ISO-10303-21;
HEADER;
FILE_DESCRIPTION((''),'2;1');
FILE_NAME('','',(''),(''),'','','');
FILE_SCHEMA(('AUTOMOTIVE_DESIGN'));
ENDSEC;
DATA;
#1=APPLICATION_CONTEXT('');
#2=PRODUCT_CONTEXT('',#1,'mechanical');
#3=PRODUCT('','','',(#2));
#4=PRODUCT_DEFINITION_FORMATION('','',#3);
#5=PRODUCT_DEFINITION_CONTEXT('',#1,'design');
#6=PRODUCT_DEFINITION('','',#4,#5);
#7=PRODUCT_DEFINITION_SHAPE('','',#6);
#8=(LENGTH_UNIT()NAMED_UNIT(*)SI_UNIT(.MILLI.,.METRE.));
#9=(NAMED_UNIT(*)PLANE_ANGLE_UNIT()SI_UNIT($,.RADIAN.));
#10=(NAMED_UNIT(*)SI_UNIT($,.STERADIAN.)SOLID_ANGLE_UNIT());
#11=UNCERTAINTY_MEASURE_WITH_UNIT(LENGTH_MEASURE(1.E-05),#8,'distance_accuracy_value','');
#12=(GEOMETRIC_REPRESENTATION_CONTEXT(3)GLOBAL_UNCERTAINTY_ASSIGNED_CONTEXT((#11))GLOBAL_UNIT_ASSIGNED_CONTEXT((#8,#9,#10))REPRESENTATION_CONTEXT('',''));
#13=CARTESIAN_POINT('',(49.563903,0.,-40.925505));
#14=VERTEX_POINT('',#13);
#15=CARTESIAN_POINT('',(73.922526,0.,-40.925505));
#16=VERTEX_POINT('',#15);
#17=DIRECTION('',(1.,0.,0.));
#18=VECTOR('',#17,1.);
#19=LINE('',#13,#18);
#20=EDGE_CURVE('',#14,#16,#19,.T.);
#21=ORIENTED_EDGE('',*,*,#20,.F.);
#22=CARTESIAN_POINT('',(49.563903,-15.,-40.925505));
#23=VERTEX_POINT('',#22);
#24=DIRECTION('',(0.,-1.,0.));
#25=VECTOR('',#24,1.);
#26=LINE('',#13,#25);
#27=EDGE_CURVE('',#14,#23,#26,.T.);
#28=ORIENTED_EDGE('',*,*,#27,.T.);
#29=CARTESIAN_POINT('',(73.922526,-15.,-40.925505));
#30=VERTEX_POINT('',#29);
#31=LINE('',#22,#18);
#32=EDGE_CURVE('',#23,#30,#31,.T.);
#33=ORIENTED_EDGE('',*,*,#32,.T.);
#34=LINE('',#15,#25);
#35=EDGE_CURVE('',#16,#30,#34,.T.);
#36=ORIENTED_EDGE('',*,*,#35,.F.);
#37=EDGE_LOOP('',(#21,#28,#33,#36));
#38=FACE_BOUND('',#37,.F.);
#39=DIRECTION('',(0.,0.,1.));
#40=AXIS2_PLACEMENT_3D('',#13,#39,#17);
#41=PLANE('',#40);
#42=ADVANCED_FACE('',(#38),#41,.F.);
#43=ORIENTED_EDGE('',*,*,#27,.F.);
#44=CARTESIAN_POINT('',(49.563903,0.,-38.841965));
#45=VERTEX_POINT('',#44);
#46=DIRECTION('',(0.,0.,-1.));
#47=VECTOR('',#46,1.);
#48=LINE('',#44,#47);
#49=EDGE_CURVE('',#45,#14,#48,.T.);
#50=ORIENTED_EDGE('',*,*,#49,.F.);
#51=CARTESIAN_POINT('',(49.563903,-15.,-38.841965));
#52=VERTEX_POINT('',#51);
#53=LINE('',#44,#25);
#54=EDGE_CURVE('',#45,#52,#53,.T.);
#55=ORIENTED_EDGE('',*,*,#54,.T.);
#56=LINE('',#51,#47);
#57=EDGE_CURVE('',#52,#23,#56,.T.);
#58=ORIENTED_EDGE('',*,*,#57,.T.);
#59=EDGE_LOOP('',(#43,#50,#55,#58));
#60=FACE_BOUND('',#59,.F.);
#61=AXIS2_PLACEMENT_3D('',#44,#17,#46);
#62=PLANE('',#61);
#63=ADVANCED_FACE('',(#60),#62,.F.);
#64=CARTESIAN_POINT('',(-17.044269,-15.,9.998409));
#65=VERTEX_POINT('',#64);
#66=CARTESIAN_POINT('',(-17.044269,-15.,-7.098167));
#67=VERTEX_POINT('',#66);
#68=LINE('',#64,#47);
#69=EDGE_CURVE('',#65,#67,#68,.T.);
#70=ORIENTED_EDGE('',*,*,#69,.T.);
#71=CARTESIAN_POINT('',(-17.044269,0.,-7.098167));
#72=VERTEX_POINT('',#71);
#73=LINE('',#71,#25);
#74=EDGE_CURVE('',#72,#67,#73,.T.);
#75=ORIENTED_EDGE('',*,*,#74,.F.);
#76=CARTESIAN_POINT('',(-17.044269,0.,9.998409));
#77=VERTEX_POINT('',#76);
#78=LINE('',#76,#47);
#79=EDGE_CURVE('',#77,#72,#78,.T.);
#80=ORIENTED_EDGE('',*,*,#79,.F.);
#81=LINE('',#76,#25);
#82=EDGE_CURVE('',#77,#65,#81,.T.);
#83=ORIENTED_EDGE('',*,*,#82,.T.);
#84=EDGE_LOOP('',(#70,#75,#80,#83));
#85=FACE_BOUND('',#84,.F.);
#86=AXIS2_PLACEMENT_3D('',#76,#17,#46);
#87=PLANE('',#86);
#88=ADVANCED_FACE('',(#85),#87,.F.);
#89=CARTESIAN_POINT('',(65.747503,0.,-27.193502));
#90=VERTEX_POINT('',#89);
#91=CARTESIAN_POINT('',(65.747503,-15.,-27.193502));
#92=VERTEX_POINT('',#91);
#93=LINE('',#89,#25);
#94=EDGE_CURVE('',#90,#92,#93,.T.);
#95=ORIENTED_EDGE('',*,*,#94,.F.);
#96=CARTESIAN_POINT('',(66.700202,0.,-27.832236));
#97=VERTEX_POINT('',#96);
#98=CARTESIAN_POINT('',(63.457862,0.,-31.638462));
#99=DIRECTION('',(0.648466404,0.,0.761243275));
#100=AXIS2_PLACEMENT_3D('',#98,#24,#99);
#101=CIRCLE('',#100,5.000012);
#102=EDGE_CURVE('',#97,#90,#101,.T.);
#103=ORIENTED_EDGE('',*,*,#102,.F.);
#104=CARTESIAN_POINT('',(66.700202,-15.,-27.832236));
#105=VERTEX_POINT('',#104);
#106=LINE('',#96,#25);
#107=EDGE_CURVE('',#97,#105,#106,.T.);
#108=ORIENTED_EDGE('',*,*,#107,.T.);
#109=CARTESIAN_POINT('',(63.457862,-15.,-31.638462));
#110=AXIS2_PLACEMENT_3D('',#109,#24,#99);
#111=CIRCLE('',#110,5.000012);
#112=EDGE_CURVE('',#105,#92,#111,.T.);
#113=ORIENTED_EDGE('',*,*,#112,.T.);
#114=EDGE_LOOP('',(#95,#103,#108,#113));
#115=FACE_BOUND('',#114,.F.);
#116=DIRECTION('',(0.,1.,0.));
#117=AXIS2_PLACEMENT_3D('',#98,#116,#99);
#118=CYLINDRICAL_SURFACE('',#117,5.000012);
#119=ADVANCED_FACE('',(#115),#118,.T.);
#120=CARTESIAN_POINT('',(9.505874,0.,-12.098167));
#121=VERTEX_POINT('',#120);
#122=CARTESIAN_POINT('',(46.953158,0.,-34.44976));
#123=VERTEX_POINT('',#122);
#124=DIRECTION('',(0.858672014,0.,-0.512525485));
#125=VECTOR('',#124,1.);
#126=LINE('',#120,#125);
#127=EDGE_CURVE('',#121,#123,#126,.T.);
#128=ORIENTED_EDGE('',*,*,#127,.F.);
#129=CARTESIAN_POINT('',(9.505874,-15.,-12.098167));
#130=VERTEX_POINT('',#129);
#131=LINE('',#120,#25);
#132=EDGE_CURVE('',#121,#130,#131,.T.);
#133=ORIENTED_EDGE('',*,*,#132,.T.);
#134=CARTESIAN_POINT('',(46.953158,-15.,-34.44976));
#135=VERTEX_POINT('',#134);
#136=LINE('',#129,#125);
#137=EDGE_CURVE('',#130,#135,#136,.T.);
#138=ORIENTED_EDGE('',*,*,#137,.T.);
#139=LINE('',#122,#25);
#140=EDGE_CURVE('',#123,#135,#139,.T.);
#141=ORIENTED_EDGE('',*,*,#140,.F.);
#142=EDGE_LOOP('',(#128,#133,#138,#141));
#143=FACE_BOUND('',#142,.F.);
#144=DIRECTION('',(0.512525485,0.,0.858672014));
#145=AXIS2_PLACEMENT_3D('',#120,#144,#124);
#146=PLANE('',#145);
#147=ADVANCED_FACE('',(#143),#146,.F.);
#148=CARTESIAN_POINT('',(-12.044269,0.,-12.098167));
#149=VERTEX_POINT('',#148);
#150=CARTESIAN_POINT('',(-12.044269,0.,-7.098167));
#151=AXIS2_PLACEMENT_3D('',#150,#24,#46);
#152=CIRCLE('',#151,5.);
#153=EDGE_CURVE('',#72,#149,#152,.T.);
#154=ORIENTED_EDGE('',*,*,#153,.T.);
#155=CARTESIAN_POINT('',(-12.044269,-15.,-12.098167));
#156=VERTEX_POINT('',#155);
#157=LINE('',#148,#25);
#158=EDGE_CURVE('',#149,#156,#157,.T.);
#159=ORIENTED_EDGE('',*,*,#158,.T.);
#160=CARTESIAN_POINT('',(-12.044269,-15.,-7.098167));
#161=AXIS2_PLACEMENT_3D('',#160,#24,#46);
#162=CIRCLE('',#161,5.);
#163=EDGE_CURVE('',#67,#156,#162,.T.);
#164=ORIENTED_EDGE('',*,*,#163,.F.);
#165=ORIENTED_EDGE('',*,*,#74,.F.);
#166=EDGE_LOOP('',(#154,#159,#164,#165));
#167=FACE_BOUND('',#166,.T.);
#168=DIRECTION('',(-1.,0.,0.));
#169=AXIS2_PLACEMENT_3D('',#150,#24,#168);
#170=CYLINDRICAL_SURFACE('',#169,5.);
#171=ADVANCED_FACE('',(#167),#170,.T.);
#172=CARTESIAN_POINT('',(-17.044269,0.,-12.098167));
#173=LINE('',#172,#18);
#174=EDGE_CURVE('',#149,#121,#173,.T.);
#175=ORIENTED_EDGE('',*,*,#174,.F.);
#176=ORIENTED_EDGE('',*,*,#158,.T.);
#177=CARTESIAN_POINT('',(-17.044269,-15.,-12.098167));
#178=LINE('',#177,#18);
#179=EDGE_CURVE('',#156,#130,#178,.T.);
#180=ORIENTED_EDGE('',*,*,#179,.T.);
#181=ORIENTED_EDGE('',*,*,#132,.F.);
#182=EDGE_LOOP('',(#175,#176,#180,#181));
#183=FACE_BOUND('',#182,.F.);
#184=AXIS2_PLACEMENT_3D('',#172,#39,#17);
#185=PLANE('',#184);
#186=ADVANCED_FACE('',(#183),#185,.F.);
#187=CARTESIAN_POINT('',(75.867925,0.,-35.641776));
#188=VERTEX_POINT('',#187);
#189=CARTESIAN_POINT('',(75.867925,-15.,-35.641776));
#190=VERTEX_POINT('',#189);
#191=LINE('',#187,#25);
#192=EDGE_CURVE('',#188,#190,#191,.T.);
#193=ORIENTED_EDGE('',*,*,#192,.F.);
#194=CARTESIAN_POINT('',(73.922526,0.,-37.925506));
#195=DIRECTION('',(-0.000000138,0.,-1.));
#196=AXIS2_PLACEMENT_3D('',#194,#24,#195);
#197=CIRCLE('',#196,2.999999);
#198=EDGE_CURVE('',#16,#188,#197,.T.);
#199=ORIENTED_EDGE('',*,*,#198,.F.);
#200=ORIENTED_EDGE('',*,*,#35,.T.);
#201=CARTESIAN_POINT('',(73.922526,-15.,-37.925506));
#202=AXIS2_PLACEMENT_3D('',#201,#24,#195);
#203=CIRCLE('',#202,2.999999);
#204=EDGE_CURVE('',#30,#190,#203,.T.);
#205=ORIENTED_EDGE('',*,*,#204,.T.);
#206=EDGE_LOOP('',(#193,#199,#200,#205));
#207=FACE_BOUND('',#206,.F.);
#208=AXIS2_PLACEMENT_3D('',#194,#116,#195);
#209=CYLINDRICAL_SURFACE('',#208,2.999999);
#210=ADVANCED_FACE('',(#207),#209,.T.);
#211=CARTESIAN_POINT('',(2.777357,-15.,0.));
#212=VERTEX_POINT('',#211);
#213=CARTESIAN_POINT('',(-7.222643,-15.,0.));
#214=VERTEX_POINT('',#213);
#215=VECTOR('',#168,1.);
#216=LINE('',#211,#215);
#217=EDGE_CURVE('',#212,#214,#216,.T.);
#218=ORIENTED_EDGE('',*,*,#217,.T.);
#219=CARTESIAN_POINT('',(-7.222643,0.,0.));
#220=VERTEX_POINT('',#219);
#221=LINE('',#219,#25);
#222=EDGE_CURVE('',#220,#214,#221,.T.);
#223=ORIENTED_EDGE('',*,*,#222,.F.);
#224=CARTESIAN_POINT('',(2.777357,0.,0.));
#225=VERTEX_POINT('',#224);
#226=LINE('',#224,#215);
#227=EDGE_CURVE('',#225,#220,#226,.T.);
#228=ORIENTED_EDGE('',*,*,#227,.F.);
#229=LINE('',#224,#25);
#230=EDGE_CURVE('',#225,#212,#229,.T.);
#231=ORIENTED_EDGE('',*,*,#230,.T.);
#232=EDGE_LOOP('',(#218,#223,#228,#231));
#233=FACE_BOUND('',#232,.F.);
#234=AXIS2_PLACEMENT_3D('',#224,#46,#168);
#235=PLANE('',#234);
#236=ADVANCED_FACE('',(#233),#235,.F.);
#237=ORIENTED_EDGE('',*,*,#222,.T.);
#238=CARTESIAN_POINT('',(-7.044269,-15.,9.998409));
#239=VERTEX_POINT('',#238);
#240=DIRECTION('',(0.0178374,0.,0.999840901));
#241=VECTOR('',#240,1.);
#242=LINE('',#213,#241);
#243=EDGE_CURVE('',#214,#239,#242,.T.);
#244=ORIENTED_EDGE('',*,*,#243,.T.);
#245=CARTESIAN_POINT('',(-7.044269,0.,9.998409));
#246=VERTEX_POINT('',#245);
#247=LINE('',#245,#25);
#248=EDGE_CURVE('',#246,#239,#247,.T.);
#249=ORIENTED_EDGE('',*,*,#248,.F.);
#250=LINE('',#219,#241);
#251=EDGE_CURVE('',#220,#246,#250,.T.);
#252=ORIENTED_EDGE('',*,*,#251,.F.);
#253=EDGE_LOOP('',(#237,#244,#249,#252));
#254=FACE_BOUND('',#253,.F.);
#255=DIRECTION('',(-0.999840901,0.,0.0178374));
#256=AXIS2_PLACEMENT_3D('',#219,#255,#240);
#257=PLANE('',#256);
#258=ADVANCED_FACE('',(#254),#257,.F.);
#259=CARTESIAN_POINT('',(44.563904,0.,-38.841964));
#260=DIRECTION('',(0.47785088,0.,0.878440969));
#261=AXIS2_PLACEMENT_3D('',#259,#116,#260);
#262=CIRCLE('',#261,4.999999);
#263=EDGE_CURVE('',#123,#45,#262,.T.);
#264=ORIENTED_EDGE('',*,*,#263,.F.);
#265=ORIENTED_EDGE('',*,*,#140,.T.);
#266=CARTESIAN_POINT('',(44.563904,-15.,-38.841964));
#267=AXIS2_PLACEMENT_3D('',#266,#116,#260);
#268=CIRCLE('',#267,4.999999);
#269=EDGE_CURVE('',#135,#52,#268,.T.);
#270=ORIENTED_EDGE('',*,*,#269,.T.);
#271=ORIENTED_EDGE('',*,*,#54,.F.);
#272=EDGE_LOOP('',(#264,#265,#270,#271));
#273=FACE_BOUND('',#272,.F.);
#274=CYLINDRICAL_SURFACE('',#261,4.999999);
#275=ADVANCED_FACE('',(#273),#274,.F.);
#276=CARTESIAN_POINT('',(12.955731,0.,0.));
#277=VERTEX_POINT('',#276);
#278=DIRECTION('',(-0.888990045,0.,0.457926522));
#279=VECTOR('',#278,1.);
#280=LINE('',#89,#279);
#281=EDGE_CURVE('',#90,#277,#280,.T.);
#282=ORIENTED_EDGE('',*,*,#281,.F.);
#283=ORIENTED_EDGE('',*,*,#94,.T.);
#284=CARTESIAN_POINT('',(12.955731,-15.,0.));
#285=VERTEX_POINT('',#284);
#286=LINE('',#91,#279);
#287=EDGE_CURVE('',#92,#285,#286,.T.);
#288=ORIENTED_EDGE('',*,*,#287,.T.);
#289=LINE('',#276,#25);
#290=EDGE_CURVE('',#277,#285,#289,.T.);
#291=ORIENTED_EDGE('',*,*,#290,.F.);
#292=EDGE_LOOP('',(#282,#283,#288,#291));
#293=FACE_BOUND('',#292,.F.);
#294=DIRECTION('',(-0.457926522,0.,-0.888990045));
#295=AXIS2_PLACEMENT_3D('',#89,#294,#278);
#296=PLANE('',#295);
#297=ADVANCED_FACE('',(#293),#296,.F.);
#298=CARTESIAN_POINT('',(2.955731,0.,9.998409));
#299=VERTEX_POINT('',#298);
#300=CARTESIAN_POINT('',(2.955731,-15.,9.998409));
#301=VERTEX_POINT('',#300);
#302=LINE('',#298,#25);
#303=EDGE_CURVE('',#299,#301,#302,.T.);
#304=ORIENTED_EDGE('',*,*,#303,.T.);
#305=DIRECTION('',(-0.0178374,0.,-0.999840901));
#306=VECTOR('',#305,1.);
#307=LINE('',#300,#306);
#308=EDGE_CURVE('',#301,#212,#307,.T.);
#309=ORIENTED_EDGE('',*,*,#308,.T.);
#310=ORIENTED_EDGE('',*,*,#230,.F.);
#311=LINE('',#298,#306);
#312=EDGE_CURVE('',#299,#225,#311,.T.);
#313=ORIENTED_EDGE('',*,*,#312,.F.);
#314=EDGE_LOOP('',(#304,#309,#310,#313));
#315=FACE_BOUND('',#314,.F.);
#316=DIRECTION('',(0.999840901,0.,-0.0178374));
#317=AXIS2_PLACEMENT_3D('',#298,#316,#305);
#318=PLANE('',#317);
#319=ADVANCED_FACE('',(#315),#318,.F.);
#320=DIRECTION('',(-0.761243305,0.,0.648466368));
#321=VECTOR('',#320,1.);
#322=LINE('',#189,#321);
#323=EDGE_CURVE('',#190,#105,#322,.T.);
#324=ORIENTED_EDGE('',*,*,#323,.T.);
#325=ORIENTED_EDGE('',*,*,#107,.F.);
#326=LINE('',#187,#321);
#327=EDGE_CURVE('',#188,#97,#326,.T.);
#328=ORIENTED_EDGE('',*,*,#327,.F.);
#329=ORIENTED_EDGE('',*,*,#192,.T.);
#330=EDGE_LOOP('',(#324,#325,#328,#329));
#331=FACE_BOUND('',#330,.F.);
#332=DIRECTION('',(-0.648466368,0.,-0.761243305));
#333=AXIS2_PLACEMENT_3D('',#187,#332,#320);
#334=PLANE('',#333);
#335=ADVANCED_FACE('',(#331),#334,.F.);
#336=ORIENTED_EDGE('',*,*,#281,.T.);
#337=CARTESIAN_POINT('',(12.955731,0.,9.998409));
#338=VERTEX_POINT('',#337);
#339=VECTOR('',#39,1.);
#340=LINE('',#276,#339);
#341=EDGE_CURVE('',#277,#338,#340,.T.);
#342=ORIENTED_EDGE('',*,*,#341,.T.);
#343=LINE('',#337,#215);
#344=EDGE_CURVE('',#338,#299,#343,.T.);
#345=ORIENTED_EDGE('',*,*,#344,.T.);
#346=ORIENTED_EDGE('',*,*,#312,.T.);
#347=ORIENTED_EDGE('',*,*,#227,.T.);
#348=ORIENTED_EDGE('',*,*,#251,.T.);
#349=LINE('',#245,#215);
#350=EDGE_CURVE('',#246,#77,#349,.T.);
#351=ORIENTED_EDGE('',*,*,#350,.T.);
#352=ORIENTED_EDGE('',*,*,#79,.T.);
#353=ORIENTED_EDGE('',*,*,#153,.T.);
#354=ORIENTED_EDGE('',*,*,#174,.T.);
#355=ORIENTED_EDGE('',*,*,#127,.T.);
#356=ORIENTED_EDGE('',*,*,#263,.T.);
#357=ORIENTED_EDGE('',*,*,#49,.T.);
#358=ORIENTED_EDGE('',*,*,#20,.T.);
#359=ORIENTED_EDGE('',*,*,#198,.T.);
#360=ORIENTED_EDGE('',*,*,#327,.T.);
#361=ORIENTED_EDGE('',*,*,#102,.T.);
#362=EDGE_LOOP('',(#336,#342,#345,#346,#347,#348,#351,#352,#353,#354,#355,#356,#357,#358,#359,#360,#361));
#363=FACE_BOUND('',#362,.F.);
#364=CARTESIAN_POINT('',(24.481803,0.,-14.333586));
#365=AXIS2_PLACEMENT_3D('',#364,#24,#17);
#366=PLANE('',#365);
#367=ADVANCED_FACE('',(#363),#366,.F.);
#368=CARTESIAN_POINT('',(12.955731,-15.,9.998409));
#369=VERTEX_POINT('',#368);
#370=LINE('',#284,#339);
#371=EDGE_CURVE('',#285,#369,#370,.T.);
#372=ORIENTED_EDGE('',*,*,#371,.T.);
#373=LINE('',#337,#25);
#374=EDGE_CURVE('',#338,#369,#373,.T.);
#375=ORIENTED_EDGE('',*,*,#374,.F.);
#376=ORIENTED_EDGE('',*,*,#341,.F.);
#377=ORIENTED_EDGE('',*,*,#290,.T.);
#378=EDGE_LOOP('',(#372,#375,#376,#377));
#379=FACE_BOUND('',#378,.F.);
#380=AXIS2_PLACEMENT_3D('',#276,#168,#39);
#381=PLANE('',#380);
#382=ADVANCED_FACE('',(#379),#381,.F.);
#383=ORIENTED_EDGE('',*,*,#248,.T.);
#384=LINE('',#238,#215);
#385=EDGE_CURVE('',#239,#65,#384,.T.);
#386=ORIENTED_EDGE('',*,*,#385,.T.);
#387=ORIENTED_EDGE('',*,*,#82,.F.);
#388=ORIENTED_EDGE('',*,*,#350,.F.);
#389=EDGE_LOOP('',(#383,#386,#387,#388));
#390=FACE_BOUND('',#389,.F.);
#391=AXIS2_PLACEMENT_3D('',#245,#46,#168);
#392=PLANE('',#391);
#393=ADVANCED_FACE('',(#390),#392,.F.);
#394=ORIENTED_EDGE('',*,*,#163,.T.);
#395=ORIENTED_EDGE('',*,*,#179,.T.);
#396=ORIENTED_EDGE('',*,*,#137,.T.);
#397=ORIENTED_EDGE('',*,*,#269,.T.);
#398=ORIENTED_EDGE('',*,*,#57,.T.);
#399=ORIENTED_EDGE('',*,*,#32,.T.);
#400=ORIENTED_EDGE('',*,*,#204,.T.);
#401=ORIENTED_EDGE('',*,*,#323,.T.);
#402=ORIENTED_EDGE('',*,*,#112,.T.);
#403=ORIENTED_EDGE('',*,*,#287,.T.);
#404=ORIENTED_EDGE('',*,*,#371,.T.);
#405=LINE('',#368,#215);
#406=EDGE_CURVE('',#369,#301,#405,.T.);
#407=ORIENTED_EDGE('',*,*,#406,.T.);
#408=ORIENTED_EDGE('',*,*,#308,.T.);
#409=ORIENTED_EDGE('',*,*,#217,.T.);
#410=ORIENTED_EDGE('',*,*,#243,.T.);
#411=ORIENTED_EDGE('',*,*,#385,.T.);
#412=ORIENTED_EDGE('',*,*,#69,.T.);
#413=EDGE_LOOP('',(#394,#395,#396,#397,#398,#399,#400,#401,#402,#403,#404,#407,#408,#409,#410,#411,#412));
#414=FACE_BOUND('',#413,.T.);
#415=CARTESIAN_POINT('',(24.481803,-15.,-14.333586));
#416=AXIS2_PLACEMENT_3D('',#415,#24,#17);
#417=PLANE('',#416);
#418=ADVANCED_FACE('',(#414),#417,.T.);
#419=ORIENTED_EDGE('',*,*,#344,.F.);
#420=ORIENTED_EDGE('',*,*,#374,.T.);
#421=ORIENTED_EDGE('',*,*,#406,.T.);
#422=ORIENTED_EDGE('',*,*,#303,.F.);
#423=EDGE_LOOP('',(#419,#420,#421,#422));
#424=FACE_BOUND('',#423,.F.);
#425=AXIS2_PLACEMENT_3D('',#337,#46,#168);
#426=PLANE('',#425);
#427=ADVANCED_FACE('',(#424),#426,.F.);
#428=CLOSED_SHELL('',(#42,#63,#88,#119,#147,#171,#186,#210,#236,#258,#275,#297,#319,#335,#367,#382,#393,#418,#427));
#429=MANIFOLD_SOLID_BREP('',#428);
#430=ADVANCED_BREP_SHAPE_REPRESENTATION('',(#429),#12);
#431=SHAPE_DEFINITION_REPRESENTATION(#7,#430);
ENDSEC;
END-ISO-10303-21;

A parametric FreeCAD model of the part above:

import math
import FreeCAD as App
import Part
import Sketcher
from FreeCAD import Vector
Q = App.Units.Quantity


def edges_at(feature, points):
    """Names of the edges that pass closest to the given points."""
    edges = feature.Shape.Edges
    near = lambda p: min(range(len(edges)), key=lambda i: edges[i].distToShape(Part.Vertex(*p))[0])
    return sorted({f"Edge{near(p) + 1}" for p in points})

doc = App.newDocument("Part")
body = doc.addObject("PartDesign::Body", "Body")

# Sketch on XZ plane
sketch1 = body.newObject("Sketcher::SketchObject", "Sketch")
sketch1.AttachmentSupport = (doc.getObject("XZ_Plane"), [""])
sketch1.MapMode = "FlatFace"
sketch1.addGeometry([
    Part.LineSegment(Vector(65.747503, -27.193502, 0), Vector(12.955731, 0, 0)),  # 0
    Part.LineSegment(Vector(12.955731, 0, 0), Vector(12.955731, 9.998409, 0)),  # 1
    Part.LineSegment(Vector(12.955731, 9.998409, 0), Vector(2.955731, 9.998409, 0)),  # 2
    Part.LineSegment(Vector(2.955731, 9.998409, 0), Vector(2.777357, 0, 0)),  # 3
    Part.LineSegment(Vector(2.777357, 0, 0), Vector(-7.222643, 0, 0)),  # 4
    Part.LineSegment(Vector(-7.222643, 0, 0), Vector(-7.044269, 9.998409, 0)),  # 5
    Part.LineSegment(Vector(-7.044269, 9.998409, 0), Vector(-17.044269, 9.998409, 0)),  # 6
    Part.LineSegment(Vector(-17.044269, 9.998409, 0), Vector(-17.044269, -12.098167, 0)),  # 7
    Part.LineSegment(Vector(-17.044269, -12.098167, 0), Vector(9.505874, -12.098167, 0)),  # 8
    Part.LineSegment(Vector(9.505874, -12.098167, 0), Vector(46.953158, -34.44976, 0)),  # 9
    Part.ArcOfCircle(Part.Circle(Vector(44.563904, -38.841964, 0), Vector(0, 0, 1), 4.999999), math.radians(-0.000013), math.radians(61.454867)),  # 10
    Part.LineSegment(Vector(49.563903, -38.841965, 0), Vector(49.563903, -40.925505, 0)),  # 11
    Part.LineSegment(Vector(49.563903, -40.925505, 0), Vector(73.922526, -40.925505, 0)),  # 12
    Part.ArcOfCircle(Part.Circle(Vector(73.922526, -37.925506, 0), Vector(0, 0, 1), 2.999999), math.radians(-90.000008), math.radians(49.573931)),  # 13
    Part.LineSegment(Vector(75.867925, -35.641776, 0), Vector(66.700202, -27.832236, 0)),  # 14
    Part.ArcOfCircle(Part.Circle(Vector(63.457862, -31.638462, 0), Vector(0, 0, 1), 5.000012), math.radians(49.573925), math.radians(62.746575)),  # 15
], False)
sketch1.addConstraint([
    Sketcher.Constraint("Coincident", 0, 2, 1, 1),
    Sketcher.Constraint("Coincident", 1, 2, 2, 1),
    Sketcher.Constraint("Coincident", 2, 2, 3, 1),
    Sketcher.Constraint("Coincident", 3, 2, 4, 1),
    Sketcher.Constraint("Coincident", 4, 2, 5, 1),
    Sketcher.Constraint("Coincident", 5, 2, 6, 1),
    Sketcher.Constraint("Coincident", 6, 2, 7, 1),
    Sketcher.Constraint("Coincident", 7, 2, 8, 1),
    Sketcher.Constraint("Coincident", 8, 2, 9, 1),
    Sketcher.Constraint("Coincident", 9, 2, 10, 2),
    Sketcher.Constraint("Coincident", 10, 1, 11, 1),
    Sketcher.Constraint("Coincident", 11, 2, 12, 1),
    Sketcher.Constraint("Coincident", 12, 2, 13, 1),
    Sketcher.Constraint("Coincident", 13, 2, 14, 1),
    Sketcher.Constraint("Coincident", 14, 2, 15, 1),
    Sketcher.Constraint("Coincident", 15, 2, 0, 1),
    Sketcher.Constraint("Vertical", 1),
    Sketcher.Constraint("Horizontal", 2),
    Sketcher.Constraint("Horizontal", 4),
    Sketcher.Constraint("Horizontal", 6),
    Sketcher.Constraint("Vertical", 7),
    Sketcher.Constraint("Horizontal", 8),
    Sketcher.Constraint("Vertical", 11),
    Sketcher.Constraint("Horizontal", 12),
    Sketcher.Constraint("PointOnObject", 0, 2, -1),
    Sketcher.Constraint("PointOnObject", 3, 2, -1),
    Sketcher.Constraint("Radius", 10, Q("4.999999 mm")),
    Sketcher.Constraint("Radius", 13, Q("2.999999 mm")),
    Sketcher.Constraint("DistanceX", 2, 2, 2, 1, Q("10 mm")),
    Sketcher.Constraint("DistanceX", 4, 2, 4, 1, Q("10 mm")),
    Sketcher.Constraint("DistanceX", 6, 2, 6, 1, Q("10 mm")),
    Sketcher.Constraint("Distance", 3, Q("10 mm")),
    Sketcher.Constraint("Distance", 5, Q("10 mm")),
    Sketcher.Constraint("DistanceX", 5, 2, 2, 2, Q("10 mm")),
    Sketcher.Constraint("Radius", 15, Q("5.000012 mm")),
    Sketcher.Constraint("DistanceY", 1, 1, 1, 2, Q("9.998409 mm")),
    Sketcher.Constraint("DistanceY", 11, 2, 11, 1, Q("2.08354 mm")),
    Sketcher.Constraint("DistanceY", 9, 2, 15, 3, Q("2.811298 mm")),
    Sketcher.Constraint("DistanceY", 10, 1, 8, 2, Q("26.743798 mm")),
    Sketcher.Constraint("DistanceX", 13, 3, 13, 2, Q("1.945399 mm")),
    Sketcher.Constraint("DistanceX", 12, 2, 13, 2, Q("1.945399 mm")),
    Sketcher.Constraint("DistanceX", 10, 1, 14, 2, Q("17.136299 mm")),
    Sketcher.Constraint("DistanceX", 15, 2, 14, 2, Q("0.952699 mm")),
    Sketcher.Constraint("Distance", 14, Q("12.043092 mm")),
    Sketcher.Constraint("DistanceX", 8, 1, 8, 2, Q("26.550143 mm")),
    Sketcher.Constraint("DistanceX", 12, 1, 12, 2, Q("24.358623 mm")),
    Sketcher.Constraint("DistanceY", 7, 2, 7, 1, Q("22.096576 mm")),
    Sketcher.Constraint("DistanceY", 15, 3, -1, 1, Q("31.638462 mm")),
    Sketcher.Constraint("DistanceX", -1, 1, 0, 2, Q("12.955731 mm")),
    Sketcher.Constraint("DistanceX", -1, 1, 9, 2, Q("46.953158 mm")),
    Sketcher.Constraint("DistanceY", 10, 3, 13, 3, Q("0.916458 mm")),
])
pad1 = body.newObject("PartDesign::Pad", "Pad")
pad1.Profile = sketch1
pad1.Length = 15
doc.recompute()

fillet = body.newObject("PartDesign::Fillet", "Fillet")
fillet.Base = (pad1, edges_at(pad1, [(-17.044, -7.5, -12.098)]))
fillet.Radius = 5

doc.recompute()
